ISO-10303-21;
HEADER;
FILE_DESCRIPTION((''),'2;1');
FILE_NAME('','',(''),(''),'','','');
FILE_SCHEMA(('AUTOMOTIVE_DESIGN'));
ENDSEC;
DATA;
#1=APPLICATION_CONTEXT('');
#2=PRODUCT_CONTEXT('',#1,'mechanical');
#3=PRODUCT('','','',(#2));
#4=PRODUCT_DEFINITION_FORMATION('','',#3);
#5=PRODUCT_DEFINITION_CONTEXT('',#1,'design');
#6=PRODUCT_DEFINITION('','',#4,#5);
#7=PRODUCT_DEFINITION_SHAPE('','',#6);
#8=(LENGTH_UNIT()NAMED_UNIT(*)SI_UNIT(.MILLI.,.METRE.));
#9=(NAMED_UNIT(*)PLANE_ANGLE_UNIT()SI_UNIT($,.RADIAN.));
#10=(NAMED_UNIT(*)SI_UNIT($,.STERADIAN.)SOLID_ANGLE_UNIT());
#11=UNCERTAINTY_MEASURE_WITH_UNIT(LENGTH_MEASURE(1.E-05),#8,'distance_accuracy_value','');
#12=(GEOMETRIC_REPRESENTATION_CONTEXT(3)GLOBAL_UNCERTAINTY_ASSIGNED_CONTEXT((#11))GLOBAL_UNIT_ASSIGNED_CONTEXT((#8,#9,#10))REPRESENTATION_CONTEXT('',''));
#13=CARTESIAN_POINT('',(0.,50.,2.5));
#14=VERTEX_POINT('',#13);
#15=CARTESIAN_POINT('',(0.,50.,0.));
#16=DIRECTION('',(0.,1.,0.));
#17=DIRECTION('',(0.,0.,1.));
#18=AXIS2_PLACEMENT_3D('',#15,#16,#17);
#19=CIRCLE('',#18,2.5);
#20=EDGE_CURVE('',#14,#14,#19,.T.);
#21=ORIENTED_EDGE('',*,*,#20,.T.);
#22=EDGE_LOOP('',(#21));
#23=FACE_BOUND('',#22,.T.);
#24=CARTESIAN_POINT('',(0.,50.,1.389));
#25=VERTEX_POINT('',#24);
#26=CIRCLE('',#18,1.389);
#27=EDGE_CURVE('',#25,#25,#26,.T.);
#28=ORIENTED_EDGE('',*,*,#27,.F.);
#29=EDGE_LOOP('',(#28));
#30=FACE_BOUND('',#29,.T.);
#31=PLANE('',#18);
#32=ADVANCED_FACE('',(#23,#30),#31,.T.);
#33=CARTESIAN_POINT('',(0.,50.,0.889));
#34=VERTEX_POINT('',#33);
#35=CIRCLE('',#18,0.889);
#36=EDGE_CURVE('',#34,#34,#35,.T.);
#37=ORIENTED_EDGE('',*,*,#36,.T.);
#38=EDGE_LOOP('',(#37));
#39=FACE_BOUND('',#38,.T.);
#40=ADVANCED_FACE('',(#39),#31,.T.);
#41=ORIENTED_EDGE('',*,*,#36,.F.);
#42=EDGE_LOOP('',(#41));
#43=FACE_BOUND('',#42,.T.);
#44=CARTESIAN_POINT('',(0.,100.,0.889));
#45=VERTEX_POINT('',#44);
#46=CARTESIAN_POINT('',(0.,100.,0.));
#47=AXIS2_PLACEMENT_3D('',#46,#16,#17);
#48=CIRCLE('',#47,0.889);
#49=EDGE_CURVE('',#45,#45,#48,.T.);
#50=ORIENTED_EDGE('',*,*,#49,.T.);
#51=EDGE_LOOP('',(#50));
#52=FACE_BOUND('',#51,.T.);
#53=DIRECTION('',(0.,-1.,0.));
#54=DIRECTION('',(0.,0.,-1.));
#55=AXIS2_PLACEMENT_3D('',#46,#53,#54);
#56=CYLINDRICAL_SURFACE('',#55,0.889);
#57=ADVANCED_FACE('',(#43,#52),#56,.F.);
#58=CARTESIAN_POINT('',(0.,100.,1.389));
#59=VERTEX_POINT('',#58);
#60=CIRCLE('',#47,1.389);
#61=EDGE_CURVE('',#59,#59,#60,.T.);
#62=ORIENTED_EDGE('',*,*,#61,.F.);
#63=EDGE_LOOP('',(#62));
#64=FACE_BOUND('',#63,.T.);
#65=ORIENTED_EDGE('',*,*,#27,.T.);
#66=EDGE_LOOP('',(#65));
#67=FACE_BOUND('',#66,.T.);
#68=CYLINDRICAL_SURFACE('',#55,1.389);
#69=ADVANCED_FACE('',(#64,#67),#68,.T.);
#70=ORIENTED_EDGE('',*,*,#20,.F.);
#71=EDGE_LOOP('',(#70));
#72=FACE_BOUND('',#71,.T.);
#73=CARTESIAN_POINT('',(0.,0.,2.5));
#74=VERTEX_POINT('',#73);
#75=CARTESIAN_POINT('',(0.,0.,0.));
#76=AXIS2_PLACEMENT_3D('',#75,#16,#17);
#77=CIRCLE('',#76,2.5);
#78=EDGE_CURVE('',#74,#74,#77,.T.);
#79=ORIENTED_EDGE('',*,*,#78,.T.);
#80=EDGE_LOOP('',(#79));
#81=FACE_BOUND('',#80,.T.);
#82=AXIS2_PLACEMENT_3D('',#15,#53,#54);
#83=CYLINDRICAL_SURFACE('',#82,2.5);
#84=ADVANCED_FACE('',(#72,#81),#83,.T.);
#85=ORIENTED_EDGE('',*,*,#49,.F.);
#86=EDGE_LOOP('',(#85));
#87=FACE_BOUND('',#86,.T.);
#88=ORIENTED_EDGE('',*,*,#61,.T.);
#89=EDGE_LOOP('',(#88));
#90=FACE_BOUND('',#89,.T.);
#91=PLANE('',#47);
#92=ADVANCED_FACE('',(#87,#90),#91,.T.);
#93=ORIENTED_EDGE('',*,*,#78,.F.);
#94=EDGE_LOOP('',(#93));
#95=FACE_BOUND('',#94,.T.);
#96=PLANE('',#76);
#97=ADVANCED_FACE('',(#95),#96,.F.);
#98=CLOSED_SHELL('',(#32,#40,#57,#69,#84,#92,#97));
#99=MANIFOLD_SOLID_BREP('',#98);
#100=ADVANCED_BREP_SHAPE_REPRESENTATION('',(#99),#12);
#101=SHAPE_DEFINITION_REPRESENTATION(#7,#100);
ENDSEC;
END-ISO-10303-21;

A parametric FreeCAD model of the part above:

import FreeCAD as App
import Part
import Sketcher

V = App.Vector

doc = App.newDocument("Part")
body = doc.addObject("PartDesign::Body", "Body")

sketch1 = body.newObject("Sketcher::SketchObject", "Sketch")
sketch1.AttachmentSupport = (doc.getObject("XZ_Plane"), [""])
sketch1.MapMode = "FlatFace"
sketch1.addGeometry([
    Part.Circle(V(0, 0, 0), V(0, 0, 1), 1.4),
    Part.Circle(V(0, 0, 0), V(0, 0, 1), 0.9),
], False)
sketch1.addConstraint([
    Sketcher.Constraint("Coincident", 0, 3, -1, 1),
    Sketcher.Constraint("Coincident", 1, 3, -1, 1),
    Sketcher.Constraint("Diameter", 0, 2.778),
    Sketcher.Constraint("Diameter", 1, 1.778),
])
pad1 = body.newObject("PartDesign::Pad", "Pad")
pad1.Profile = sketch1
pad1.Length = 100
pad1.Reversed = True

sketch2 = body.newObject("Sketcher::SketchObject", "Sketch001")
sketch2.AttachmentSupport = (doc.getObject("XZ_Plane"), [""])
sketch2.MapMode = "FlatFace"
sketch2.addGeometry(Part.Circle(V(0, 0, 0), V(0, 0, 1), 2.5), False)
sketch2.addConstraint([
    Sketcher.Constraint("Coincident", 0, 3, -1, 1),
    Sketcher.Constraint("Diameter", 0, 5.0),
])
pad2 = body.newObject("PartDesign::Pad", "Pad001")
pad2.Profile = sketch2
pad2.Length = 50
pad2.Reversed = True

doc.recompute()
